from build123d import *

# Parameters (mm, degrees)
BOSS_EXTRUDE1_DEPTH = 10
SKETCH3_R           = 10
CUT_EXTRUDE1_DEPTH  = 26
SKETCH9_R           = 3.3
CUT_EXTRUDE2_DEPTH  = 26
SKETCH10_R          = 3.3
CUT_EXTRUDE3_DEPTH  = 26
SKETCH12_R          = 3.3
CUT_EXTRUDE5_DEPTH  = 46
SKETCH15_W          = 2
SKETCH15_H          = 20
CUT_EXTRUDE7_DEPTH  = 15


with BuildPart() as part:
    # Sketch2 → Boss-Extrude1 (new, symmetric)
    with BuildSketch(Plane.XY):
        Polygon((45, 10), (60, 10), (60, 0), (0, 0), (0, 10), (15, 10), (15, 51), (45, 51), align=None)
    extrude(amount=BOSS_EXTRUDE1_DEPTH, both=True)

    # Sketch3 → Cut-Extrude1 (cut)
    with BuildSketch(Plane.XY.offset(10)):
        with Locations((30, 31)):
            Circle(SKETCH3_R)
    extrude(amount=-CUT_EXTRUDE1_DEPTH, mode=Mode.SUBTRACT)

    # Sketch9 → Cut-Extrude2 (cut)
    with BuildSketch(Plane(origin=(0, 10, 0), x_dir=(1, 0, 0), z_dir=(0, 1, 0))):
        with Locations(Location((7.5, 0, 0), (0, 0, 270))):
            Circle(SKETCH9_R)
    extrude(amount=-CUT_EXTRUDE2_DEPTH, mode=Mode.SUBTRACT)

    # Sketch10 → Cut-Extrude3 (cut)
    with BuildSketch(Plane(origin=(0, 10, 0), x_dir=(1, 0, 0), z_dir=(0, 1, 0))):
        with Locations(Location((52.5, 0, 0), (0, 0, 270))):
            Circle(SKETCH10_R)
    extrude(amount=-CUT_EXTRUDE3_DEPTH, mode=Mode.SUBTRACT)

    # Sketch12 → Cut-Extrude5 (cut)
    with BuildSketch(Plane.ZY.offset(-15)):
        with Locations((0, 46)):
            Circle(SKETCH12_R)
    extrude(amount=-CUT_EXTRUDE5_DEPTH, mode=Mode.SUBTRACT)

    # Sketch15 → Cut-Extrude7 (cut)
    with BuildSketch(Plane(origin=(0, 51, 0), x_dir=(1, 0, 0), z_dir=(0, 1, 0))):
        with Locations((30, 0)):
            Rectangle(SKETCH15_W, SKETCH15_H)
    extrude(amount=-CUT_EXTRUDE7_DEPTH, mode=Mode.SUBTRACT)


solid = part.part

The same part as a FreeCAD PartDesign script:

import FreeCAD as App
import Part
import Sketcher


def add_polygon(sketch, points):
    """Adds a closed chain of lines whose ends are joined by coincident constraints."""
    first, n = sketch.GeometryCount, len(points)
    for a, b in zip(points, points[1:] + points[:1]):
        sketch.addGeometry(Part.LineSegment(App.Vector(*a, 0), App.Vector(*b, 0)), False)
    for i in range(n):
        sketch.addConstraint(Sketcher.Constraint("Coincident", first + i, 2, first + (i + 1) % n, 1))

doc = App.newDocument("Part")
params = doc.addObject("Spreadsheet::Sheet", "Params")
for row, (alias, value) in enumerate([
    ("sketch1_width", "15 mm"),
    ("sketch1_width2", "30 mm"),
    ("sketch1_height", "41 mm"),
    ("sketch1_height2", "10 mm"),
    ("pad1_length", "20 mm"),
    ("sketch2_diameter", "20 mm"),
    ("pocket1_length", "26 mm"),
    ("sketch3_diameter", "6.6 mm"),
    ("pocket2_length", "26 mm"),
    ("sketch4_diameter", "6.6 mm"),
    ("pocket3_length", "26 mm"),
    ("sketch5_diameter", "6.6 mm"),
    ("pocket4_length", "46 mm"),
    ("sketch6_width", "2 mm"),
    ("sketch6_height", "20 mm"),
    ("pocket5_length", "15 mm"),
], start=1):
    params.set(f"A{row}", alias)
    params.set(f"B{row}", "=" + value)
    params.setAlias(f"B{row}", alias)

body = doc.addObject("PartDesign::Body", "Body")

sketch1 = body.newObject("Sketcher::SketchObject", "Sketch")
sketch1.AttachmentSupport = (doc.getObject("XY_Plane"), [""])
sketch1.MapMode = "FlatFace"
add_polygon(sketch1, [(60, 10), (45, 10), (45, 51), (15, 51), (15, 10), (0, 10), (0, 0), (60, 0)])
sketch1.addConstraint([
    Sketcher.Constraint("Horizontal", 0),
    Sketcher.Constraint("Vertical", 1),
    Sketcher.Constraint("Horizontal", 2),
    Sketcher.Constraint("Vertical", 3),
    Sketcher.Constraint("Horizontal", 4),
    Sketcher.Constraint("Vertical", 5),
    Sketcher.Constraint("Horizontal", 6),
    Sketcher.Constraint("Vertical", 7),
    Sketcher.Constraint("Coincident", 5, 2, -1, 1),
    Sketcher.Constraint("Horizontal", 0, 2, 3, 2),
    Sketcher.Constraint("Equal", 0, 4),
    Sketcher.Constraint("DistanceX", 0, 2, 0, 1, 15.0),
    Sketcher.Constraint("DistanceX", 2, 2, 2, 1, 30.0),
    Sketcher.Constraint("DistanceY", 1, 1, 1, 2, 41.0),
    Sketcher.Constraint("DistanceY", 5, 2, 5, 1, 10.0),
])
sketch1.setExpression("Constraints[19]", "Params.sketch1_width")
sketch1.setExpression("Constraints[20]", "Params.sketch1_width2")
sketch1.setExpression("Constraints[21]", "Params.sketch1_height")
sketch1.setExpression("Constraints[22]", "Params.sketch1_height2")
pad1 = body.newObject("PartDesign::Pad", "Pad")
pad1.Profile = sketch1
pad1.setExpression("Length", "Params.pad1_length")
pad1.Midplane = True

sketch2 = body.newObject("Sketcher::SketchObject", "Sketch001")
sketch2.AttachmentSupport = (doc.getObject("XY_Plane"), [""])
sketch2.MapMode = "FlatFace"
sketch2.AttachmentOffset = App.Placement(App.Vector(0, 0, 10), App.Rotation())
sketch2.addGeometry(Part.Circle(App.Vector(30, 31, 0), App.Vector(0, 0, 1), 10), False)
sketch2.addConstraint([
    Sketcher.Constraint("Diameter", 0, 20.0),
    Sketcher.Constraint("DistanceX", -1, 1, 0, 3, 30.0),
    Sketcher.Constraint("DistanceY", -1, 1, 0, 3, 31.0),
])
sketch2.setExpression("Constraints[0]", "Params.sketch2_diameter")
pocket1 = body.newObject("PartDesign::Pocket", "Pocket")
pocket1.Profile = sketch2
pocket1.setExpression("Length", "Params.pocket1_length")

sketch3 = body.newObject("Sketcher::SketchObject", "Sketch002")
sketch3.AttachmentSupport = (doc.getObject("XZ_Plane"), [""])
sketch3.MapMode = "FlatFace"
sketch3.AttachmentOffset = App.Placement(App.Vector(0, 0, -10), App.Rotation())
sketch3.addGeometry(Part.Circle(App.Vector(7.5, 0, 0), App.Vector(0, 0, 1), 3.3), False)
sketch3.addConstraint([
    Sketcher.Constraint("PointOnObject", 0, 3, -1),
    Sketcher.Constraint("Diameter", 0, 6.6),
    Sketcher.Constraint("DistanceX", -1, 1, 0, 3, 7.5),
])
sketch3.setExpression("Constraints[1]", "Params.sketch3_diameter")
pocket2 = body.newObject("PartDesign::Pocket", "Pocket001")
pocket2.Profile = sketch3
pocket2.setExpression("Length", "Params.pocket2_length")
pocket2.Reversed = True

sketch4 = body.newObject("Sketcher::SketchObject", "Sketch003")
sketch4.AttachmentSupport = (doc.getObject("XZ_Plane"), [""])
sketch4.MapMode = "FlatFace"
sketch4.AttachmentOffset = App.Placement(App.Vector(0, 0, -10), App.Rotation())
sketch4.addGeometry(Part.Circle(App.Vector(52.5, 0, 0), App.Vector(0, 0, 1), 3.3), False)
sketch4.addConstraint([
    Sketcher.Constraint("PointOnObject", 0, 3, -1),
    Sketcher.Constraint("Diameter", 0, 6.6),
    Sketcher.Constraint("DistanceX", -1, 1, 0, 3, 52.5),
])
sketch4.setExpression("Constraints[1]", "Params.sketch4_diameter")
pocket3 = body.newObject("PartDesign::Pocket", "Pocket002")
pocket3.Profile = sketch4
pocket3.setExpression("Length", "Params.pocket3_length")
pocket3.Reversed = True

sketch5 = body.newObject("Sketcher::SketchObject", "Sketch004")
sketch5.AttachmentSupport = (doc.getObject("YZ_Plane"), [""])
sketch5.MapMode = "FlatFace"
sketch5.AttachmentOffset = App.Placement(App.Vector(0, 0, 15), App.Rotation())
sketch5.addGeometry(Part.Circle(App.Vector(46, 0, 0), App.Vector(0, 0, 1), 3.3), False)
sketch5.addConstraint([
    Sketcher.Constraint("PointOnObject", 0, 3, -1),
    Sketcher.Constraint("Diameter", 0, 6.6),
    Sketcher.Constraint("DistanceX", -1, 1, 0, 3, 46.0),
])
sketch5.setExpression("Constraints[1]", "Params.sketch5_diameter")
pocket4 = body.newObject("PartDesign::Pocket", "Pocket003")
pocket4.Profile = sketch5
pocket4.setExpression("Length", "Params.pocket4_length")
pocket4.Reversed = True

sketch6 = body.newObject("Sketcher::SketchObject", "Sketch005")
sketch6.AttachmentSupport = (doc.getObject("XZ_Plane"), [""])
sketch6.MapMode = "FlatFace"
sketch6.AttachmentOffset = App.Placement(App.Vector(0, 0, -51), App.Rotation())
add_polygon(sketch6, [(29, -10), (29, 10), (31, 10), (31, -10)])
sketch6.addConstraint([
    Sketcher.Constraint("Vertical", 0),
    Sketcher.Constraint("Horizontal", 1),
    Sketcher.Constraint("Vertical", 2),
    Sketcher.Constraint("Horizontal", 3),
    Sketcher.Constraint("DistanceX", 1, 1, 1, 2, 2.0),
    Sketcher.Constraint("DistanceY", 0, 1, 0, 2, 20.0),
    Sketcher.Constraint("DistanceX", -1, 1, 0, 2, 29.0),
    Sketcher.Constraint("DistanceY", -1, 1, 0, 2, 10.0),
])
sketch6.setExpression("Constraints[8]", "Params.sketch6_width")
sketch6.setExpression("Constraints[9]", "Params.sketch6_height")
pocket5 = body.newObject("PartDesign::Pocket", "Pocket004")
pocket5.Profile = sketch6
pocket5.setExpression("Length", "Params.pocket5_length")
pocket5.Reversed = True

doc.recompute()
